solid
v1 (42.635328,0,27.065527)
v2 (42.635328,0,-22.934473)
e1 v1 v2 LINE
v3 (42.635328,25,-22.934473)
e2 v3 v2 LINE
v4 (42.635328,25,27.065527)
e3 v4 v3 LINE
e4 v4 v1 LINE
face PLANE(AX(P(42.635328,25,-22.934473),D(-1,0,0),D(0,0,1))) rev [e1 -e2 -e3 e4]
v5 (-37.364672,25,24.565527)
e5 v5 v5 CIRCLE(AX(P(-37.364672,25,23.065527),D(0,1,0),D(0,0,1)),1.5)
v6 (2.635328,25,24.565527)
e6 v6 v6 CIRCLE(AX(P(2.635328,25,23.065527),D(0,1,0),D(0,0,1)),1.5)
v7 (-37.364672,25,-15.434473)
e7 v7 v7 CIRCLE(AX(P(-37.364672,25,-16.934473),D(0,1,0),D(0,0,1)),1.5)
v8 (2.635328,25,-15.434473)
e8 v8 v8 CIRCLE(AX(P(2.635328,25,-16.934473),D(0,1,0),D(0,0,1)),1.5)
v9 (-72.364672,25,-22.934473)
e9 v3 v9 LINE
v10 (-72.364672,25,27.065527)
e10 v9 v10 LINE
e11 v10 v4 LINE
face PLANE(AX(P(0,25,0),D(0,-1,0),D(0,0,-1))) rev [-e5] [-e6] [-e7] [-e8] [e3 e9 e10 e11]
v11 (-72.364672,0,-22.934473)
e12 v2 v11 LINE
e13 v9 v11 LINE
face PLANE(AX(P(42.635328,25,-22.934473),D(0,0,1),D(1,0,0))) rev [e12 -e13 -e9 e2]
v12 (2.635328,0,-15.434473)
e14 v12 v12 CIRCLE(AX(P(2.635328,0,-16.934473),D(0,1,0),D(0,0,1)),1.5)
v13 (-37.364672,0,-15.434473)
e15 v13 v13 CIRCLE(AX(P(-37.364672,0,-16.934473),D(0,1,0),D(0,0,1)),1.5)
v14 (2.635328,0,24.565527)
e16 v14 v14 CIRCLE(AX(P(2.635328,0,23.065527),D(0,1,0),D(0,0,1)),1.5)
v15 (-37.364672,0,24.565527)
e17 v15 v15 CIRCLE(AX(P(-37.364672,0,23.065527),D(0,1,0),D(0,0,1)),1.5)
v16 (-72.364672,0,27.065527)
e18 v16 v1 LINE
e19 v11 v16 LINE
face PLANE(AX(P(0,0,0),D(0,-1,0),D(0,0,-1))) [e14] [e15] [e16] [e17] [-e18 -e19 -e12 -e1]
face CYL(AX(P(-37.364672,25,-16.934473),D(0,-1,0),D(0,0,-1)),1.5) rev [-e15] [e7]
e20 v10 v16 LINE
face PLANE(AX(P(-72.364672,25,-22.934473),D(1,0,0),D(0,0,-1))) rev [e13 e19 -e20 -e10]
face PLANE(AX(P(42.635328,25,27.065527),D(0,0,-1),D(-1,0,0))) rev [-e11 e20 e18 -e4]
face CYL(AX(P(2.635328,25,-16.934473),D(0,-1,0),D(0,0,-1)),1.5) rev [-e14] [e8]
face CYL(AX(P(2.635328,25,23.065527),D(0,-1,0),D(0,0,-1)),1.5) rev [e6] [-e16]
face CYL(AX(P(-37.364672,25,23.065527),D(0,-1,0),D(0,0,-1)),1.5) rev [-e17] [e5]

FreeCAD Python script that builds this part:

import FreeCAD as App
import Part
import Sketcher

V = App.Vector


def add_polygon(sketch, points):
    """Adds a closed chain of lines whose ends are joined by coincident constraints."""
    first, n = sketch.GeometryCount, len(points)
    for a, b in zip(points, points[1:] + points[:1]):
        sketch.addGeometry(Part.LineSegment(App.Vector(*a, 0), App.Vector(*b, 0)), False)
    for i in range(n):
        sketch.addConstraint(Sketcher.Constraint("Coincident", first + i, 2, first + (i + 1) % n, 1))

doc = App.newDocument("Part")
body = doc.addObject("PartDesign::Body", "Body")

# Sketch on XZ plane
sketch1 = body.newObject("Sketcher::SketchObject", "Sketch")
sketch1.AttachmentSupport = (doc.getObject("XZ_Plane"), [""])
sketch1.MapMode = "FlatFace"
add_polygon(sketch1, [(-72.4, -22.9), (-72.4, 27.1), (42.6, 27.1), (42.6, -22.9)])  # lines 0-3
sketch1.addGeometry(Part.Circle(V(-37.4, 23.1, 0), V(0, 0, 1), 1.5), False)  # 4
sketch1.addGeometry(Part.Circle(V(2.6, 23.1, 0), V(0, 0, 1), 1.5), False)  # 5
sketch1.addGeometry(Part.Circle(V(-37.4, -16.9, 0), V(0, 0, 1), 1.5), False)  # 6
sketch1.addGeometry(Part.Circle(V(2.6, -16.9, 0), V(0, 0, 1), 1.5), False)  # 7
sketch1.addConstraint([
    Sketcher.Constraint("Vertical", 0),
    Sketcher.Constraint("Horizontal", 1),
    Sketcher.Constraint("Vertical", 2),
    Sketcher.Constraint("Horizontal", 3),
    Sketcher.Constraint("Equal", 4, 5),
    Sketcher.Constraint("Equal", 5, 6),
    Sketcher.Constraint("Equal", 6, 7),
    Sketcher.Constraint("Horizontal", 4, 3, 5, 3),
    Sketcher.Constraint("Horizontal", 6, 3, 7, 3),
    Sketcher.Constraint("Vertical", 4, 3, 6, 3),
    Sketcher.Constraint("Vertical", 5, 3, 7, 3),
    Sketcher.Constraint("Diameter", 4, 3.0),
    Sketcher.Constraint("DistanceX", 1, 1, 1, 2, 115.0),
    Sketcher.Constraint("DistanceY", 0, 1, 0, 2, 50.0),
    Sketcher.Constraint("DistanceX", 4, 3, 5, 3, 40.0),
    Sketcher.Constraint("DistanceY", 6, 3, 4, 3, 40.0),
    Sketcher.Constraint("DistanceX", 0, 2, 4, 3, 35.0),
    Sketcher.Constraint("DistanceY", 4, 3, 0, 2, 4.0),
    Sketcher.Constraint("DistanceX", 4, 3, -1, 1, 37.364672),
    Sketcher.Constraint("DistanceY", -1, 1, 4, 3, 23.065527),
])
pad1 = body.newObject("PartDesign::Pad", "Pad")
pad1.Profile = sketch1
pad1.Length = 25
pad1.Reversed = True

doc.recompute()
